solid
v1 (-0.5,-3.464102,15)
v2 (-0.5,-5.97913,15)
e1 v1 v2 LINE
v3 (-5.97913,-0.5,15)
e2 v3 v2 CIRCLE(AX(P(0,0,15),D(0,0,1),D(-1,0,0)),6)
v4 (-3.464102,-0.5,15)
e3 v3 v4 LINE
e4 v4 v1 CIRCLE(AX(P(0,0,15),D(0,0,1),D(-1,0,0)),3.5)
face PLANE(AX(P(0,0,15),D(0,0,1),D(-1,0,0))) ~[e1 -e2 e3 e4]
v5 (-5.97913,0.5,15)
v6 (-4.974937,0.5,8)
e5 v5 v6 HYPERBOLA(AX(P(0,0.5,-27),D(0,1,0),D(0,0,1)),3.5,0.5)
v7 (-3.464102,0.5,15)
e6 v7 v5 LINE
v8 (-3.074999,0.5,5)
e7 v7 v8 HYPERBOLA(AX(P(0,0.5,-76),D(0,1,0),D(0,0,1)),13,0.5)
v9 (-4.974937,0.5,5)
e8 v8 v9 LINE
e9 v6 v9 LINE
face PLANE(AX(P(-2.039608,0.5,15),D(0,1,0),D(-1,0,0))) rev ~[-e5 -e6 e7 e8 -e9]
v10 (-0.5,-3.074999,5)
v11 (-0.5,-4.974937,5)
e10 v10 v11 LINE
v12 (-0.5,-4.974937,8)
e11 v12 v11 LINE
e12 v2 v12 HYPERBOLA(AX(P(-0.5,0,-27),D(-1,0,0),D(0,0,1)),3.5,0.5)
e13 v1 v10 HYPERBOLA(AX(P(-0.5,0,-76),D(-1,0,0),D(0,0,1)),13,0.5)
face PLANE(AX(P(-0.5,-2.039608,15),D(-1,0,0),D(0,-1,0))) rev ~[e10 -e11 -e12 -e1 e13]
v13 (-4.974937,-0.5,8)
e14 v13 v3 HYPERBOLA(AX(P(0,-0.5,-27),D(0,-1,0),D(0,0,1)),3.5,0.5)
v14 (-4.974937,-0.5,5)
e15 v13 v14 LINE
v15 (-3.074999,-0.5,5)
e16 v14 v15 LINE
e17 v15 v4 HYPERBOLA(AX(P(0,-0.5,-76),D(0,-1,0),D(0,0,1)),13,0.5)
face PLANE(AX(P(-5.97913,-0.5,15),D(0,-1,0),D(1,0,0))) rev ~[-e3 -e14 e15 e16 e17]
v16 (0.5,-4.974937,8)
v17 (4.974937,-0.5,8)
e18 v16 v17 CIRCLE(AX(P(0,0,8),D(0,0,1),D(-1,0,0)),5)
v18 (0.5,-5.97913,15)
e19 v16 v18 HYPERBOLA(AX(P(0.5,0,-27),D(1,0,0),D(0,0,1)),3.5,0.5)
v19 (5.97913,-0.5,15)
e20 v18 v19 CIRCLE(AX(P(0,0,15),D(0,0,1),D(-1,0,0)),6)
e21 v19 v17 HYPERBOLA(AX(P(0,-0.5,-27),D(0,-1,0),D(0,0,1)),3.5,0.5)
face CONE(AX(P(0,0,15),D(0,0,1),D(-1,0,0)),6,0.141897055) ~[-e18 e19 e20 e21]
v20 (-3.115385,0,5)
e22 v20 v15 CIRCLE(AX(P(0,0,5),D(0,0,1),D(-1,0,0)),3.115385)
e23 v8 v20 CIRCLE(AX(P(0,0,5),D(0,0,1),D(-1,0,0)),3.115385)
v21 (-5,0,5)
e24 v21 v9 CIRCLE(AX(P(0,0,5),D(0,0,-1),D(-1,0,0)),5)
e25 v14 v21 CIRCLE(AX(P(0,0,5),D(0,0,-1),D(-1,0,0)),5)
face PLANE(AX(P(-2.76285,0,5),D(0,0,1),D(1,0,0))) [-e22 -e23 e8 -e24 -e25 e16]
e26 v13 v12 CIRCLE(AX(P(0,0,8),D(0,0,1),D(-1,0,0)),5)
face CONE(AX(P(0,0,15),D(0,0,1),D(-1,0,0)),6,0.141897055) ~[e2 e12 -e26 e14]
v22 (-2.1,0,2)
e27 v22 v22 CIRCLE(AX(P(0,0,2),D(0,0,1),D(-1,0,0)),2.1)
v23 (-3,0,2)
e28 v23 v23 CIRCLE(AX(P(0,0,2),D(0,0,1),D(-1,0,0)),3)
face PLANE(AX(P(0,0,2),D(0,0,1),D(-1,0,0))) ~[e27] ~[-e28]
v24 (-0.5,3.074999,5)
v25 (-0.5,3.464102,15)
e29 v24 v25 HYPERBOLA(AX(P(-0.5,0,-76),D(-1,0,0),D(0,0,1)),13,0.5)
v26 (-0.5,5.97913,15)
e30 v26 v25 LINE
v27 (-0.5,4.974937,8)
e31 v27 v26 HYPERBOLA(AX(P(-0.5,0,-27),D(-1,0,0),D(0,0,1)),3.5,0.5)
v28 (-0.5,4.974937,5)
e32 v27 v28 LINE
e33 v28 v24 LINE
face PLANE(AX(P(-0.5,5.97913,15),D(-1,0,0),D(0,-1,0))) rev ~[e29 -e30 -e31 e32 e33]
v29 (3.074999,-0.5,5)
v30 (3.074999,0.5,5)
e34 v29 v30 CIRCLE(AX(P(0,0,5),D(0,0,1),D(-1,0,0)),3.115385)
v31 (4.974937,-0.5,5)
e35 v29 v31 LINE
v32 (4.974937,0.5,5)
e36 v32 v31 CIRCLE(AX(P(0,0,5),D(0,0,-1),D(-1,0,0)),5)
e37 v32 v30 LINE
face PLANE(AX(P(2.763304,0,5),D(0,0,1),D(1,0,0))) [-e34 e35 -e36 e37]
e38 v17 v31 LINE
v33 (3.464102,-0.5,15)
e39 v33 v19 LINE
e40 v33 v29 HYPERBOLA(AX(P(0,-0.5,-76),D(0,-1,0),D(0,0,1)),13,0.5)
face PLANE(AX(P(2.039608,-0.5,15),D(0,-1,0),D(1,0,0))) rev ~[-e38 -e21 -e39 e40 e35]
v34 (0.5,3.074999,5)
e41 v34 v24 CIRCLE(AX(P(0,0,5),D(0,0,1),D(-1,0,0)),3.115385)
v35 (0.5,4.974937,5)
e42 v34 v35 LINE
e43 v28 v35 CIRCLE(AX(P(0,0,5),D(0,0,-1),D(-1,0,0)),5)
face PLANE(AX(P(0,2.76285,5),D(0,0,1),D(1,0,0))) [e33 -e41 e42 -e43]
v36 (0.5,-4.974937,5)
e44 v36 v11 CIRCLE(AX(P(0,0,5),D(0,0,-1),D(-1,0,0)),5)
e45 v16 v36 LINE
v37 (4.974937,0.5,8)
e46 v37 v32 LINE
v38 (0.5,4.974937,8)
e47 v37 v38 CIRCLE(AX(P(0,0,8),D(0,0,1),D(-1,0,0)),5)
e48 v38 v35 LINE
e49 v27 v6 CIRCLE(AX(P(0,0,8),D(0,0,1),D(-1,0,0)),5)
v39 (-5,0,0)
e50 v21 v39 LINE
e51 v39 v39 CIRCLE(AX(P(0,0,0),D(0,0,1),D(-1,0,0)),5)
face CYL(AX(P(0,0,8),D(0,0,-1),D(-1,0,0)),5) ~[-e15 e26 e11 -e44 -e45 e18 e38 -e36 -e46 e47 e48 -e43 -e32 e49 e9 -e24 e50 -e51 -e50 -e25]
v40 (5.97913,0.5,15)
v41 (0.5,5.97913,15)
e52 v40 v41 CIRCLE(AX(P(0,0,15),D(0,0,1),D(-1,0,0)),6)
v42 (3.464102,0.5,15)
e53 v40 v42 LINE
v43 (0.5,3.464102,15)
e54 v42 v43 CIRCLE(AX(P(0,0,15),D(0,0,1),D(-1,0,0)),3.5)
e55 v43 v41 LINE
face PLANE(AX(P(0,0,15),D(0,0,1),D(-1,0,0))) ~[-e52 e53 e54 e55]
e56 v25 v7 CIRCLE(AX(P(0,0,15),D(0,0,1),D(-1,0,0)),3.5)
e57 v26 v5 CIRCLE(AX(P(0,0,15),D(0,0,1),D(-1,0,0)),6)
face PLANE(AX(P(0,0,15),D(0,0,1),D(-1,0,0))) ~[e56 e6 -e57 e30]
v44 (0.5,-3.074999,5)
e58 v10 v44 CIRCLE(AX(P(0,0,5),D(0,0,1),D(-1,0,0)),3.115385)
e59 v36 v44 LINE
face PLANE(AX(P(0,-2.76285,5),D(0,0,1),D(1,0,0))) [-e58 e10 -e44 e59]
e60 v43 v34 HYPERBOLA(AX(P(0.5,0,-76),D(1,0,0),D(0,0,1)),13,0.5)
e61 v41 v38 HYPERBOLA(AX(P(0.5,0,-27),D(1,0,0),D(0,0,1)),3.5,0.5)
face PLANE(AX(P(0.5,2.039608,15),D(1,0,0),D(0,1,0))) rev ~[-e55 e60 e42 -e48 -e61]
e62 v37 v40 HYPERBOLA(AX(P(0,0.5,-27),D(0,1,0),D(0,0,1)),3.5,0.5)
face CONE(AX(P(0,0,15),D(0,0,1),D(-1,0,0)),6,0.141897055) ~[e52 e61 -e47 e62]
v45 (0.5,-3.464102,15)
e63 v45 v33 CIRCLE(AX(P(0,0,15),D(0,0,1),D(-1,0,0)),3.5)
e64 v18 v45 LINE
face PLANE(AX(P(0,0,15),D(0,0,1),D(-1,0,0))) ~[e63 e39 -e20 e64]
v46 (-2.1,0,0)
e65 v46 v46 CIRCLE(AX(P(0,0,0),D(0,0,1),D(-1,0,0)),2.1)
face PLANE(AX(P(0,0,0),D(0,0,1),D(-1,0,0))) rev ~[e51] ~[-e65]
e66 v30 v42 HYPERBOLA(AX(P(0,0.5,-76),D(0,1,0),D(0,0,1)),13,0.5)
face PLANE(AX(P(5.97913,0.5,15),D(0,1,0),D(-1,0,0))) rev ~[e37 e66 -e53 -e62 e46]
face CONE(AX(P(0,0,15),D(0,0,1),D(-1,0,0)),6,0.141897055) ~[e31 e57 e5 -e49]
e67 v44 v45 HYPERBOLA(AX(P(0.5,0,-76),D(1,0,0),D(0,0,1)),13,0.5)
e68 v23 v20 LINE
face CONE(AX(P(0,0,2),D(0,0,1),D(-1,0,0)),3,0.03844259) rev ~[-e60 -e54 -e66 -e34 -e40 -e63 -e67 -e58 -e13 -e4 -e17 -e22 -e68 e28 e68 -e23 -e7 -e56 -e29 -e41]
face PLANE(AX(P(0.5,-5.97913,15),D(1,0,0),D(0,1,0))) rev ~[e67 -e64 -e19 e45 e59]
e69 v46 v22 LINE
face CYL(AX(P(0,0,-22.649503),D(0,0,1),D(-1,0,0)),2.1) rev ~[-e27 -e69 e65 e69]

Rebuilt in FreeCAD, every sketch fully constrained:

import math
import FreeCAD as App
import Part
import Sketcher
from FreeCAD import Vector
Q = App.Units.Quantity

doc = App.newDocument("Part")
body = doc.addObject("PartDesign::Body", "Body")

# Sketch on XZ plane
sketch1 = body.newObject("Sketcher::SketchObject", "Sketch")
sketch1.AttachmentSupport = (doc.getObject("XZ_Plane"), [""])
sketch1.MapMode = "FlatFace"
sketch1.addGeometry([
    Part.LineSegment(Vector(-5, 0, 0), Vector(0, 0, 0)),  # 0
    Part.LineSegment(Vector(0, 0, 0), Vector(0, 2, 0)),  # 1
    Part.LineSegment(Vector(0, 2, 0), Vector(-3, 2, 0)),  # 2
    Part.LineSegment(Vector(-3, 2, 0), Vector(-3.5, 15, 0)),  # 3
    Part.LineSegment(Vector(-3.5, 15, 0), Vector(-6, 15, 0)),  # 4
    Part.LineSegment(Vector(-6, 15, 0), Vector(-5, 8, 0)),  # 5
    Part.LineSegment(Vector(-5, 8, 0), Vector(-5, 0, 0)),  # 6
], False)
sketch1.addConstraint([
    Sketcher.Constraint("Coincident", 0, 2, 1, 1),
    Sketcher.Constraint("Coincident", 1, 2, 2, 1),
    Sketcher.Constraint("Coincident", 2, 2, 3, 1),
    Sketcher.Constraint("Coincident", 3, 2, 4, 1),
    Sketcher.Constraint("Coincident", 4, 2, 5, 1),
    Sketcher.Constraint("Coincident", 5, 2, 6, 1),
    Sketcher.Constraint("Coincident", 6, 2, 0, 1),
    Sketcher.Constraint("Horizontal", 0),
    Sketcher.Constraint("Vertical", 1),
    Sketcher.Constraint("Horizontal", 2),
    Sketcher.Constraint("Horizontal", 4),
    Sketcher.Constraint("Vertical", 6),
    Sketcher.Constraint("Coincident", 0, 2, -1, 1),
    Sketcher.Constraint("DistanceX", 0, 1, 0, 2, Q("5 mm")),
    Sketcher.Constraint("DistanceX", 2, 2, 2, 1, Q("3 mm")),
    Sketcher.Constraint("DistanceY", 1, 1, 1, 2, Q("2 mm")),
    Sketcher.Constraint("DistanceY", 6, 2, 6, 1, Q("8 mm")),
    Sketcher.Constraint("DistanceX", 4, 2, 4, 1, Q("2.5 mm")),
    Sketcher.Constraint("DistanceY", -1, 1, 3, 2, Q("15 mm")),
    Sketcher.Constraint("DistanceX", 4, 2, -1, 1, Q("6 mm")),
])
revolution = body.newObject("PartDesign::Revolution", "Revolution")
revolution.Profile = sketch1
revolution.ReferenceAxis = (sketch1, ["V_Axis"])
revolution.Angle = 360

# Sketch on XY plane
sketch2 = body.newObject("Sketcher::SketchObject", "Sketch001")
sketch2.AttachmentSupport = (doc.getObject("XY_Plane"), [""])
sketch2.MapMode = "FlatFace"
sketch2.addGeometry(Part.Circle(Vector(0, 0, 0), Vector(0, 0, 1), 2.1), False)
sketch2.addConstraint([
    Sketcher.Constraint("Coincident", 0, 3, -1, 1),
    Sketcher.Constraint("Diameter", 0, Q("4.2 mm")),
])
doc.recompute()
hole = body.newObject("PartDesign::Hole", "Hole")
hole.Profile = sketch2
hole.ThreadType = "None"
hole.Diameter = 4.2
hole.DepthType = "ThroughAll"
hole.Reversed = True

# Sketch on XY plane
sketch3 = body.newObject("Sketcher::SketchObject", "Sketch002")
sketch3.AttachmentSupport = (doc.getObject("XY_Plane"), [""])
sketch3.MapMode = "FlatFace"
sketch3.AttachmentOffset = App.Placement(Vector(0, 0, 15), App.Rotation())
sketch3.addGeometry([
    Part.LineSegment(Vector(-2, 0.5, 0), Vector(-6, 0.5, 0)),  # 0
    Part.ArcOfCircle(Part.Circle(Vector(0, 0, 0), Vector(0, 0, 1), 6), math.radians(175.22), math.radians(184.78)),  # 1
    Part.LineSegment(Vector(-6, -0.5, 0), Vector(-2, -0.5, 0)),  # 2
    Part.ArcOfCircle(Part.Circle(Vector(0, 0, 0), Vector(0, 0, 1), 2.1), math.radians(166), math.radians(194)),  # 3
    Part.ArcOfCircle(Part.Circle(Vector(0, 0, 0), Vector(0, 0, 1), 2.1), math.radians(76), math.radians(104)),  # 4
    Part.LineSegment(Vector(0.5, 2, 0), Vector(0.5, 6, 0)),  # 5
    Part.ArcOfCircle(Part.Circle(Vector(0, 0, 0), Vector(0, 0, 1), 6), math.radians(85.22), math.radians(94.78)),  # 6
    Part.LineSegment(Vector(-0.5, 6, 0), Vector(-0.5, 2, 0)),  # 7
    Part.ArcOfCircle(Part.Circle(Vector(0, 0, 0), Vector(0, 0, 1), 2.1), math.radians(-14), math.radians(14)),  # 8
    Part.LineSegment(Vector(2, -0.5, 0), Vector(6, -0.5, 0)),  # 9
    Part.ArcOfCircle(Part.Circle(Vector(0, 0, 0), Vector(0, 0, 1), 6), math.radians(-4.78), math.radians(0)),  # 10
    Part.ArcOfCircle(Part.Circle(Vector(0, 0, 0), Vector(0, 0, 1), 6), math.radians(0), math.radians(4.78)),  # 11
    Part.LineSegment(Vector(6, 0.5, 0), Vector(2, 0.5, 0)),  # 12
    Part.LineSegment(Vector(-0.5, -2, 0), Vector(-0.5, -6, 0)),  # 13
    Part.ArcOfCircle(Part.Circle(Vector(0, 0, 0), Vector(0, 0, 1), 6), math.radians(-94.78), math.radians(-85.22)),  # 14
    Part.LineSegment(Vector(0.5, -6, 0), Vector(0.5, -2, 0)),  # 15
    Part.ArcOfCircle(Part.Circle(Vector(0, 0, 0), Vector(0, 0, 1), 2.1), math.radians(-104), math.radians(-76)),  # 16
], False)
sketch3.addConstraint([
    Sketcher.Constraint("Coincident", 0, 2, 1, 1),
    Sketcher.Constraint("Coincident", 1, 2, 2, 1),
    Sketcher.Constraint("Coincident", 2, 2, 3, 2),
    Sketcher.Constraint("Coincident", 3, 1, 0, 1),
    Sketcher.Constraint("Coincident", 4, 1, 5, 1),
    Sketcher.Constraint("Coincident", 5, 2, 6, 1),
    Sketcher.Constraint("Coincident", 6, 2, 7, 1),
    Sketcher.Constraint("Coincident", 7, 2, 4, 2),
    Sketcher.Constraint("Coincident", 8, 1, 9, 1),
    Sketcher.Constraint("Coincident", 9, 2, 10, 1),
    Sketcher.Constraint("Tangent", 10, 2, 11, 1),
    Sketcher.Constraint("Coincident", 11, 2, 12, 1),
    Sketcher.Constraint("Coincident", 12, 2, 8, 2),
    Sketcher.Constraint("Coincident", 13, 2, 14, 1),
    Sketcher.Constraint("Coincident", 14, 2, 15, 1),
    Sketcher.Constraint("Coincident", 15, 2, 16, 2),
    Sketcher.Constraint("Coincident", 16, 1, 13, 1),
    Sketcher.Constraint("Horizontal", 0),
    Sketcher.Constraint("Horizontal", 2),
    Sketcher.Constraint("Vertical", 5),
    Sketcher.Constraint("Vertical", 7),
    Sketcher.Constraint("Horizontal", 9),
    Sketcher.Constraint("Horizontal", 12),
    Sketcher.Constraint("Vertical", 13),
    Sketcher.Constraint("Vertical", 15),
    Sketcher.Constraint("Coincident", 1, 3, -1, 1),
    Sketcher.Constraint("Coincident", 3, 3, -1, 1),
    Sketcher.Constraint("Coincident", 4, 3, -1, 1),
    Sketcher.Constraint("Coincident", 6, 3, -1, 1),
    Sketcher.Constraint("Coincident", 8, 3, -1, 1),
    Sketcher.Constraint("Coincident", 10, 3, -1, 1),
    Sketcher.Constraint("Coincident", 14, 3, -1, 1),
    Sketcher.Constraint("Coincident", 16, 3, -1, 1),
    Sketcher.Constraint("Equal", 3, 4),
    Sketcher.Constraint("Equal", 1, 6),
    Sketcher.Constraint("Equal", 4, 8),
    Sketcher.Constraint("Equal", 6, 10),
    Sketcher.Constraint("Equal", 10, 11),
    Sketcher.Constraint("Equal", 11, 14),
    Sketcher.Constraint("Equal", 8, 16),
    Sketcher.Constraint("PointOnObject", 10, 2, -1),
    Sketcher.Constraint("Horizontal", 5, 2, 6, 2),
    Sketcher.Constraint("Horizontal", 2, 2, 8, 1),
    Sketcher.Constraint("Horizontal", 3, 1, 11, 2),
    Sketcher.Constraint("Horizontal", 13, 2, 14, 2),
    Sketcher.Constraint("Vertical", 0, 2, 1, 2),
    Sketcher.Constraint("Vertical", 7, 2, 13, 2),
    Sketcher.Constraint("Equal", 12, 5),
    Sketcher.Constraint("Radius", 1, Q("6 mm")),
    Sketcher.Constraint("Radius", 3, Q("2.1 mm")),
    Sketcher.Constraint("DistanceY", 1, 2, 0, 2, Q("1 mm")),
])
pocket1 = body.newObject("PartDesign::Pocket", "Pocket")
pocket1.Profile = sketch3
pocket1.Length = 10

doc.recompute()
